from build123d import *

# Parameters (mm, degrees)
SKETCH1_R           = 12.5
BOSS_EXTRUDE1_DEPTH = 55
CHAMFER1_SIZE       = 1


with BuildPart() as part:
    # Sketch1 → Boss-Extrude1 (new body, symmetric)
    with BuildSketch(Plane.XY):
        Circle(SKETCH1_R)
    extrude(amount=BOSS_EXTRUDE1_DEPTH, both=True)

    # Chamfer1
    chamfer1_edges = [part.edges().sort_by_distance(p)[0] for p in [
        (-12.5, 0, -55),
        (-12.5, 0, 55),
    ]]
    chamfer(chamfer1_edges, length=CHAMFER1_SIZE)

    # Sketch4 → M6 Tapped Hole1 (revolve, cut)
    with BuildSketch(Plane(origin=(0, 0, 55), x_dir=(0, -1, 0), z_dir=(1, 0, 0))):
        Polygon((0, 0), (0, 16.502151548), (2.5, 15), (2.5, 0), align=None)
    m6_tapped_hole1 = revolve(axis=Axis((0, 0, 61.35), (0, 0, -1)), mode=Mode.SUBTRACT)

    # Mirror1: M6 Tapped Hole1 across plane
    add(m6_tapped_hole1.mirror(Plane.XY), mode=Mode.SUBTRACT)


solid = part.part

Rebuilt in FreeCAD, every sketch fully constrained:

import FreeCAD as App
import Part
import Sketcher

V = App.Vector
Q = App.Units.Quantity


def edges_at(feature, points):
    """Names of the edges that pass closest to the given points."""
    edges = feature.Shape.Edges
    near = lambda p: min(range(len(edges)), key=lambda i: edges[i].distToShape(Part.Vertex(*p))[0])
    return sorted({f"Edge{near(p) + 1}" for p in points})

doc = App.newDocument("Part")
body = doc.addObject("PartDesign::Body", "Body")

# Sketch on XY plane
sketch1 = body.newObject("Sketcher::SketchObject", "Sketch")
sketch1.AttachmentSupport = (doc.getObject("XY_Plane"), [""])
sketch1.MapMode = "FlatFace"
sketch1.addGeometry(Part.Circle(V(0, 0, 0), V(0, 0, 1), 12), False)
sketch1.addConstraint([
    Sketcher.Constraint("Coincident", 0, 3, -1, 1),
    Sketcher.Constraint("Diameter", 0, 25.0),
])
pad1 = body.newObject("PartDesign::Pad", "Pad")
pad1.Profile = sketch1
pad1.Length = 110
pad1.Midplane = True
doc.recompute()

chamfer = body.newObject("PartDesign::Chamfer", "Chamfer")
chamfer.Base = (pad1, edges_at(pad1, [(-12.5, 0, -55), (-12.5, 0, 55)]))
chamfer.Size = 1

# Sketch on YZ plane
sketch2 = body.newObject("Sketcher::SketchObject", "Sketch001")
sketch2.AttachmentSupport = (doc.getObject("YZ_Plane"), [""])
sketch2.MapMode = "FlatFace"
sketch2.addGeometry([
    Part.LineSegment(V(0, 38.5, 0), V(0, 55, 0)),
    Part.LineSegment(V(0, 55, 0), V(-2.5, 55, 0)),
    Part.LineSegment(V(-2.5, 55, 0), V(-2.5, 40, 0)),
    Part.LineSegment(V(-2.5, 40, 0), V(0, 38.5, 0)),
], False)
sketch2.addConstraint([
    Sketcher.Constraint("Coincident", 0, 2, 1, 1),
    Sketcher.Constraint("Coincident", 1, 2, 2, 1),
    Sketcher.Constraint("Coincident", 2, 2, 3, 1),
    Sketcher.Constraint("Coincident", 3, 2, 0, 1),
    Sketcher.Constraint("Vertical", 0),
    Sketcher.Constraint("Horizontal", 1),
    Sketcher.Constraint("Vertical", 2),
    Sketcher.Constraint("PointOnObject", 0, 2, -2),
    Sketcher.Constraint("DistanceY", 2, 2, 2, 1, 15.0),
    Sketcher.Constraint("Angle", 3, Q("-31 deg")),
    Sketcher.Constraint("DistanceX", 1, 2, 1, 1, 2.5),
    Sketcher.Constraint("DistanceY", -1, 1, 0, 2, 55.0),
])
groove = body.newObject("PartDesign::Groove", "Groove")
groove.Profile = sketch2
groove.ReferenceAxis = (sketch2, ["V_Axis"])
groove.Angle = 360
doc.recompute()

mirrored = body.newObject("PartDesign::Mirrored", "Mirrored")
mirrored.Originals = [groove]
mirrored.MirrorPlane = (doc.getObject("XY_Plane"), [""])
body.Tip = mirrored

doc.recompute()
